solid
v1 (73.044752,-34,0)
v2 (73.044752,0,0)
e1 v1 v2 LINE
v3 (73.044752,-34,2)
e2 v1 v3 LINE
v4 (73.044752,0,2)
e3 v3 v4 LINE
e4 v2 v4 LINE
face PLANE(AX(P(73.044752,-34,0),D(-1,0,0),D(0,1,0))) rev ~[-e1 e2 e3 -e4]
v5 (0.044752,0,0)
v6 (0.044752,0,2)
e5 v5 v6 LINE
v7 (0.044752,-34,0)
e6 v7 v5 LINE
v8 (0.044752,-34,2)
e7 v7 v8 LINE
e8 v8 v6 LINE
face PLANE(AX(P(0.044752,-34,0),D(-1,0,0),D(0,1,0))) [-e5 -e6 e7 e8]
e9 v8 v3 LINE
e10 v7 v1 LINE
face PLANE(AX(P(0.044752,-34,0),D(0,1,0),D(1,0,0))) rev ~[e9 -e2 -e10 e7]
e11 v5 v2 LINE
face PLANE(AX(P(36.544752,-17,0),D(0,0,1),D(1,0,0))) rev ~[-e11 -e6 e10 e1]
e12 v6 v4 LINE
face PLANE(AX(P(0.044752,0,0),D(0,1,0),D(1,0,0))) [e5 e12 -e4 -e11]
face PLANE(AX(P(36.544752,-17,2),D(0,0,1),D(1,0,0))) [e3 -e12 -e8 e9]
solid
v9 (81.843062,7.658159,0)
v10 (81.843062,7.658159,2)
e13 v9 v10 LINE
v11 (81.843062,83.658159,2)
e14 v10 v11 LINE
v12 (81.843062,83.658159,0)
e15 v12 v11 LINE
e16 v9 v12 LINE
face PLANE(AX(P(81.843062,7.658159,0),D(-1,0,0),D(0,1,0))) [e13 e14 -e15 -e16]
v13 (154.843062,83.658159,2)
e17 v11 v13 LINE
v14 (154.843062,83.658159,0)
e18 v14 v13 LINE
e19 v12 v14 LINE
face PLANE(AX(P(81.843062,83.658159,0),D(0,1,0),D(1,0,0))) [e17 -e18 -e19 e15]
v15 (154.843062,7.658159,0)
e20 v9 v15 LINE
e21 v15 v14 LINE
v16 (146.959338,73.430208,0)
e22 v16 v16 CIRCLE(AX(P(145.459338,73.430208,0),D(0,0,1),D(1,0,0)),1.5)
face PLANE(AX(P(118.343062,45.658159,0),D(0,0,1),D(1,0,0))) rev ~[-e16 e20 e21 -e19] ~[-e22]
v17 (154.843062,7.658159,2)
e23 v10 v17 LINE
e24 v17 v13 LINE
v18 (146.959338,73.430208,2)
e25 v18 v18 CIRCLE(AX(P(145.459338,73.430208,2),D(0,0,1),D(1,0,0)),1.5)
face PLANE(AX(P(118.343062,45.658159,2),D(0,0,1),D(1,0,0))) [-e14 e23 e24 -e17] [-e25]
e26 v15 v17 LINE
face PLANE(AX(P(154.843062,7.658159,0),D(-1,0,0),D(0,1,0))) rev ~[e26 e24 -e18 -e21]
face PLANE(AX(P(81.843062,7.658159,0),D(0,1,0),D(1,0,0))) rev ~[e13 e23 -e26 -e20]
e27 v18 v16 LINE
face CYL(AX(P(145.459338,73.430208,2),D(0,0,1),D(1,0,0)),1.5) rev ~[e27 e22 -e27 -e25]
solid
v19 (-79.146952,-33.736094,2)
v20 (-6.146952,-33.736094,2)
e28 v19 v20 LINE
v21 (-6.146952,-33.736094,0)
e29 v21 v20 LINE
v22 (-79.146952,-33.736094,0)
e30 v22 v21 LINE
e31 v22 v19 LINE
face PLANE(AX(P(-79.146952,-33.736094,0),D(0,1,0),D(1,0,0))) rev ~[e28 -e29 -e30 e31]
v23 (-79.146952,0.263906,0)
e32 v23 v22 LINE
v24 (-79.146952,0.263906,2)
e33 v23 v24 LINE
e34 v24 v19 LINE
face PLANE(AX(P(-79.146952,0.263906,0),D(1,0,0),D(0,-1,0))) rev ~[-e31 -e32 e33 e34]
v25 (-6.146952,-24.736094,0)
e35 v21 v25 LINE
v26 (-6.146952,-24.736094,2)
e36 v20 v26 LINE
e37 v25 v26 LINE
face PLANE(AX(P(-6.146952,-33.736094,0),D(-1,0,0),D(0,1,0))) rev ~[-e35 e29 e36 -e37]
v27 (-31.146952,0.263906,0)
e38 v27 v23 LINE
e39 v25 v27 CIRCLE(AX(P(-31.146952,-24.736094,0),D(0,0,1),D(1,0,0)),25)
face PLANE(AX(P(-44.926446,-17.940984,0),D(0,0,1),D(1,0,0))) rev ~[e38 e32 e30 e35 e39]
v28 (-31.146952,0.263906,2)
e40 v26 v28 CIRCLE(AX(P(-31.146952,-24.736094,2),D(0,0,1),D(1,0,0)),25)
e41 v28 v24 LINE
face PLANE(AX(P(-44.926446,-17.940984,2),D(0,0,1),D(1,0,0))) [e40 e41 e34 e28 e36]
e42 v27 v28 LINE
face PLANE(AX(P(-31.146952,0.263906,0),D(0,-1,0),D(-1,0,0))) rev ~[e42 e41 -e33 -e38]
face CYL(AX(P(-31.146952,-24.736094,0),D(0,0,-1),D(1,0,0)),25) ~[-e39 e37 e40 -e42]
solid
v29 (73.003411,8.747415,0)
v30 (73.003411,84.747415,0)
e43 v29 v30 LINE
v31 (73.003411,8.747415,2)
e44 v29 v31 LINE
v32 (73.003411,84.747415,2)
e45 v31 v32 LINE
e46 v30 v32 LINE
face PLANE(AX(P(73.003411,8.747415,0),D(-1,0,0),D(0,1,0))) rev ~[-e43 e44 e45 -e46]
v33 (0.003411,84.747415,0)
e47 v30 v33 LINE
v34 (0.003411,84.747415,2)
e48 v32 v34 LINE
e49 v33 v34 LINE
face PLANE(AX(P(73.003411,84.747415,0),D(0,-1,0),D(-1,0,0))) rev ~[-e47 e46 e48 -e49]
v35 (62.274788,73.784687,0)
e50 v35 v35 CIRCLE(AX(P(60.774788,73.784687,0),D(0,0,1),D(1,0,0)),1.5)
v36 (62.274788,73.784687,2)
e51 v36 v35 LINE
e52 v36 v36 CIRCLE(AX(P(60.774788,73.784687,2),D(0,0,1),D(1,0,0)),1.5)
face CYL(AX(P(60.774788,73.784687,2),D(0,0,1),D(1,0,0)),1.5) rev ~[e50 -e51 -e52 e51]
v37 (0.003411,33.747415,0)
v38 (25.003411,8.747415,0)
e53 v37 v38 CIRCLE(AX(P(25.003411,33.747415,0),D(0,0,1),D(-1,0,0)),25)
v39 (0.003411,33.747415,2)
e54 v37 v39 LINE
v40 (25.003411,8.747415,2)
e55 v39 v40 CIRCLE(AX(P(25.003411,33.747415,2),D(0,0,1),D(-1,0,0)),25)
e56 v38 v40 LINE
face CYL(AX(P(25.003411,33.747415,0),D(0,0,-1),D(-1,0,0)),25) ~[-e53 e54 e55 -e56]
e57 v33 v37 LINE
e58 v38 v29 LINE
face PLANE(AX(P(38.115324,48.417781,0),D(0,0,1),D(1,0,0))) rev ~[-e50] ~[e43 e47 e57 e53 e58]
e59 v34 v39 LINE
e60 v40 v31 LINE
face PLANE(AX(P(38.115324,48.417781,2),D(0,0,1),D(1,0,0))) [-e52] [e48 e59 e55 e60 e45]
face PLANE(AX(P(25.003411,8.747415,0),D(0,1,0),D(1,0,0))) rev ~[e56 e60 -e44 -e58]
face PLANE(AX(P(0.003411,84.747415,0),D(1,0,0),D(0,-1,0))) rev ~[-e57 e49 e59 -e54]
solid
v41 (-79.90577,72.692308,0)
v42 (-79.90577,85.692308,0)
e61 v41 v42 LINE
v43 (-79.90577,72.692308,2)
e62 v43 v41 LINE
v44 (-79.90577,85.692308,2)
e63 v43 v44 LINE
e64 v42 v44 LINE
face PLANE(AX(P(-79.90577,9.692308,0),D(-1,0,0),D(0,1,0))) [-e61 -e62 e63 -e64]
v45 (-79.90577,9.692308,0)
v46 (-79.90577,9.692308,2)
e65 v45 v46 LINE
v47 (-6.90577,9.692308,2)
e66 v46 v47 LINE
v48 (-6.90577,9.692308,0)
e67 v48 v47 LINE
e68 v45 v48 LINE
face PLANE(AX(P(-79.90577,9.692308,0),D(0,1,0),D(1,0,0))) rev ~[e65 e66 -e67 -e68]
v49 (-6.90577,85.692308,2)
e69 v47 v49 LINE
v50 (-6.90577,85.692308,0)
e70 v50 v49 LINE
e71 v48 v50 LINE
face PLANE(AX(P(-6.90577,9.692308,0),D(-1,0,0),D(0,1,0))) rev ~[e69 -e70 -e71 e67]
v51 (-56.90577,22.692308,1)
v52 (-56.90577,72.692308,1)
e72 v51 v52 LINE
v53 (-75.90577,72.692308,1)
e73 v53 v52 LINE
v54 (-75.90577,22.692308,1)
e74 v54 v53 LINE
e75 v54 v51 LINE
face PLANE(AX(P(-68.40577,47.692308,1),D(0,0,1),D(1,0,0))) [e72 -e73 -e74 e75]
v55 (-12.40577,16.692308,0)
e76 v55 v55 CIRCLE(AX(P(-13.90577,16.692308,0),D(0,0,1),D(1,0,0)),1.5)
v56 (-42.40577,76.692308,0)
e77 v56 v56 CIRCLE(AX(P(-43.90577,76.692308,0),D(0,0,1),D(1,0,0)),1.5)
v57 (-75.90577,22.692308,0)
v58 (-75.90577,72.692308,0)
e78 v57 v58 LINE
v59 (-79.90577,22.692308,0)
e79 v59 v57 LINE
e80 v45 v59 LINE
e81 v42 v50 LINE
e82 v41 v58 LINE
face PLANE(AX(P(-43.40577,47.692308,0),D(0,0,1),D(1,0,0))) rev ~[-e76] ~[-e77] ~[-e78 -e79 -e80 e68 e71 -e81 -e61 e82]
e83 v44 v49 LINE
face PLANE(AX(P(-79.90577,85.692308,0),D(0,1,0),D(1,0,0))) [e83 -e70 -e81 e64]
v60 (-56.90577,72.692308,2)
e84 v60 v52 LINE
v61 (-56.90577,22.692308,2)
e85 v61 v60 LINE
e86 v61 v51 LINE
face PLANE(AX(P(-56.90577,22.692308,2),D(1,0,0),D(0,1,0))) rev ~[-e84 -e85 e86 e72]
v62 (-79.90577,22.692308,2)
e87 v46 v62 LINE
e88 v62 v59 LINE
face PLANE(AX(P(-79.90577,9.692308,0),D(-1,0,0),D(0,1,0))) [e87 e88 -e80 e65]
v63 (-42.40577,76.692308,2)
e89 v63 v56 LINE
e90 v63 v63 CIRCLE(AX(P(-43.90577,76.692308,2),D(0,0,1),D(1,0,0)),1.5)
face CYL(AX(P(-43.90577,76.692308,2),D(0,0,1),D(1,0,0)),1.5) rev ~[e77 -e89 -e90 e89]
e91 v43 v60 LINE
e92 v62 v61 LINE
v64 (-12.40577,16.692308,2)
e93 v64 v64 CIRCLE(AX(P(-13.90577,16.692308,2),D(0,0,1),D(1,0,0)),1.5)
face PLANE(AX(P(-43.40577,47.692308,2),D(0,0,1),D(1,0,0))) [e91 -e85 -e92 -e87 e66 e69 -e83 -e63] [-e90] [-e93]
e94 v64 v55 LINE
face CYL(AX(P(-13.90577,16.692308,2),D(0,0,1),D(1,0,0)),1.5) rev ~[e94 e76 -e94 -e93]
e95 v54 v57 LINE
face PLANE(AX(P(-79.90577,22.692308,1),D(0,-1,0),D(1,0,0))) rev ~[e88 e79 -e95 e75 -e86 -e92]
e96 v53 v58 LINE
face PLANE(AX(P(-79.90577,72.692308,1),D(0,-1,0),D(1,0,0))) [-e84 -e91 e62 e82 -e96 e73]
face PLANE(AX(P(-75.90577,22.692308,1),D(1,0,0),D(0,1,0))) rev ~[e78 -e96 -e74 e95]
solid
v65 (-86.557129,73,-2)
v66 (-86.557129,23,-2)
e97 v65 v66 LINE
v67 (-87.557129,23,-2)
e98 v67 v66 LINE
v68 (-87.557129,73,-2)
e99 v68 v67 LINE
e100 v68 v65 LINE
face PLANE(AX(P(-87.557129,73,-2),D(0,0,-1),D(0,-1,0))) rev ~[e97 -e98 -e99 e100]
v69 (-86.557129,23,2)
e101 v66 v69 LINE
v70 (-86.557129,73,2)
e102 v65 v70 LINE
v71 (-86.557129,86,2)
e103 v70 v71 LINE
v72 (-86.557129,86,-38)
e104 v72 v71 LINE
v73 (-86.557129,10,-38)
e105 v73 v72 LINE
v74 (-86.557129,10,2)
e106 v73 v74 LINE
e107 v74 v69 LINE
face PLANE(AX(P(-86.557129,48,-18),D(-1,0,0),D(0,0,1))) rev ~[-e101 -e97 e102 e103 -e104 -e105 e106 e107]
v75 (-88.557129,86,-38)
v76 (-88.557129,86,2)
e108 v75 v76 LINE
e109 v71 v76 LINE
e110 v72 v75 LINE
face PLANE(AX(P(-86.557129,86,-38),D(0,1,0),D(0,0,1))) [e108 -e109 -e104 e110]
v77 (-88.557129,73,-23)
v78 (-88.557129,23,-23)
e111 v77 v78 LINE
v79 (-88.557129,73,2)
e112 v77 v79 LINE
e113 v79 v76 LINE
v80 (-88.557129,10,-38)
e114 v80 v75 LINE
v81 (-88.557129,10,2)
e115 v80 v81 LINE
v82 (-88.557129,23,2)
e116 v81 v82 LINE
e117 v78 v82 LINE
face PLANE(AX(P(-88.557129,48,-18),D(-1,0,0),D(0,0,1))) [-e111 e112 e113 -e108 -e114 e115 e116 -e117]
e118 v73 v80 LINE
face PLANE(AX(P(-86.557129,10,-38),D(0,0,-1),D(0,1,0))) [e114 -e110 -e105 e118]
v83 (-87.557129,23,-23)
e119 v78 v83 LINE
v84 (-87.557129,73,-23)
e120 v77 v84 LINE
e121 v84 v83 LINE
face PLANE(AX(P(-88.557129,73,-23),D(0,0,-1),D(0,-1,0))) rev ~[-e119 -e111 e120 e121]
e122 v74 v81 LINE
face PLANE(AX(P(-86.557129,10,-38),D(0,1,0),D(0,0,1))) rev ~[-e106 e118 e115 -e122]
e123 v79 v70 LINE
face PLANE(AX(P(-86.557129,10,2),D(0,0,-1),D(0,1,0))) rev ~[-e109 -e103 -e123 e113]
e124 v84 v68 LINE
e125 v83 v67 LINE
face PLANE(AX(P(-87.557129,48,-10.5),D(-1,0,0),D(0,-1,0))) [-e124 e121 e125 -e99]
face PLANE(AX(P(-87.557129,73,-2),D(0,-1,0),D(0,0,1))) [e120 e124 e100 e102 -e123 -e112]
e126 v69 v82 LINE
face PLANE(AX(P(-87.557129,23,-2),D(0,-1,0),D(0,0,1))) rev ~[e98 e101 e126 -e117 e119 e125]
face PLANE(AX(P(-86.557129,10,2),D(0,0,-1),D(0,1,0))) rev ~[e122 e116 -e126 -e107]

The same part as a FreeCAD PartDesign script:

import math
import FreeCAD as App
import Part
import Sketcher


def add_polygon(sketch, points):
    """Adds a closed chain of lines whose ends are joined by coincident constraints."""
    first, n = sketch.GeometryCount, len(points)
    for a, b in zip(points, points[1:] + points[:1]):
        sketch.addGeometry(Part.LineSegment(App.Vector(*a, 0), App.Vector(*b, 0)), False)
    for i in range(n):
        sketch.addConstraint(Sketcher.Constraint("Coincident", first + i, 2, first + (i + 1) % n, 1))

doc = App.newDocument("Part")
body = doc.addObject("PartDesign::Body", "Body")

sketch1 = doc.addObject("Sketcher::SketchObject", "Sketch")
body.addObject(sketch1)
sketch1.AttachmentSupport = (doc.XY_Plane, [""])
sketch1.MapMode = "FlatFace"
add_polygon(sketch1, [(-80, 86), (-80, 10), (-7, 10), (-7, 86)])
sketch1.addConstraint([
    Sketcher.Constraint("Vertical", 0),
    Sketcher.Constraint("Horizontal", 1),
    Sketcher.Constraint("Vertical", 2),
    Sketcher.Constraint("Horizontal", 3),
    Sketcher.Constraint("DistanceX", 1, 1, 1, 2, 73.0),
    Sketcher.Constraint("DistanceY", 0, 2, 0, 1, 76.0),
    Sketcher.Constraint("DistanceX", 0, 2, -1, 1, 79.90577),
    Sketcher.Constraint("DistanceY", -1, 1, 0, 2, 9.692308),
])
pad1 = doc.addObject("PartDesign::Pad", "Pad")
body.addObject(pad1)
pad1.Profile = sketch1
pad1.Length = 2
body2 = doc.addObject("PartDesign::Body", "Body001")

sketch2 = doc.addObject("Sketcher::SketchObject", "Sketch001")
body2.addObject(sketch2)
sketch2.AttachmentSupport = (doc.getObject("XY_Plane001"), [""])
sketch2.MapMode = "FlatFace"
sketch2.addGeometry([
    Part.LineSegment(App.Vector(73, 85, 0), App.Vector(0, 85, 0)),
    Part.LineSegment(App.Vector(0, 85, 0), App.Vector(0, 34, 0)),
    Part.ArcOfCircle(Part.Circle(App.Vector(25, 34, 0), App.Vector(0, 0, 1), 25), math.radians(180), math.radians(270)),
    Part.LineSegment(App.Vector(25, 9, 0), App.Vector(73, 9, 0)),
    Part.LineSegment(App.Vector(73, 9, 0), App.Vector(73, 85, 0)),
], False)
sketch2.addConstraint([
    Sketcher.Constraint("Coincident", 0, 2, 1, 1),
    Sketcher.Constraint("Tangent", 1, 2, 2, 1),
    Sketcher.Constraint("Tangent", 2, 2, 3, 1),
    Sketcher.Constraint("Coincident", 3, 2, 4, 1),
    Sketcher.Constraint("Coincident", 4, 2, 0, 1),
    Sketcher.Constraint("Horizontal", 0),
    Sketcher.Constraint("Vertical", 1),
    Sketcher.Constraint("Horizontal", 3),
    Sketcher.Constraint("Vertical", 4),
    Sketcher.Constraint("Radius", 2, 25.0),
    Sketcher.Constraint("DistanceX", 0, 2, 0, 1, 73.0),
    Sketcher.Constraint("DistanceY", 1, 2, 1, 1, 51.0),
    Sketcher.Constraint("DistanceX", -1, 1, 2, 3, 25.003411),
    Sketcher.Constraint("DistanceY", -1, 1, 2, 3, 33.747415),
])
pad2 = doc.addObject("PartDesign::Pad", "Pad001")
body2.addObject(pad2)
pad2.Profile = sketch2
pad2.Length = 2
body3 = doc.addObject("PartDesign::Body", "Body002")

sketch3 = doc.addObject("Sketcher::SketchObject", "Sketch002")
body3.addObject(sketch3)
sketch3.AttachmentSupport = (doc.getObject("XY_Plane002"), [""])
sketch3.MapMode = "FlatFace"
sketch3.addGeometry([
    Part.LineSegment(App.Vector(-31, 0, 0), App.Vector(-79, 0, 0)),
    Part.LineSegment(App.Vector(-79, 0, 0), App.Vector(-79, -34, 0)),
    Part.LineSegment(App.Vector(-79, -34, 0), App.Vector(-6, -34, 0)),
    Part.LineSegment(App.Vector(-6, -34, 0), App.Vector(-6, -25, 0)),
    Part.ArcOfCircle(Part.Circle(App.Vector(-31, -25, 0), App.Vector(0, 0, 1), 25), math.radians(0), math.radians(90)),
], False)
sketch3.addConstraint([
    Sketcher.Constraint("Coincident", 0, 2, 1, 1),
    Sketcher.Constraint("Coincident", 1, 2, 2, 1),
    Sketcher.Constraint("Coincident", 2, 2, 3, 1),
    Sketcher.Constraint("Tangent", 3, 2, 4, 1),
    Sketcher.Constraint("Tangent", 4, 2, 0, 1),
    Sketcher.Constraint("Horizontal", 0),
    Sketcher.Constraint("Vertical", 1),
    Sketcher.Constraint("Horizontal", 2),
    Sketcher.Constraint("Vertical", 3),
    Sketcher.Constraint("Radius", 4, 25.0),
    Sketcher.Constraint("DistanceX", 0, 2, 0, 1, 48.0),
    Sketcher.Constraint("DistanceY", 1, 2, 1, 1, 34.0),
    Sketcher.Constraint("DistanceX", 4, 3, -1, 1, 31.146952),
    Sketcher.Constraint("DistanceY", 4, 3, -1, 1, 24.736094),
])
pad3 = doc.addObject("PartDesign::Pad", "Pad002")
body3.addObject(pad3)
pad3.Profile = sketch3
pad3.Length = 2
body4 = doc.addObject("PartDesign::Body", "Body003")

sketch4 = doc.addObject("Sketcher::SketchObject", "Sketch003")
body4.addObject(sketch4)
sketch4.AttachmentSupport = (doc.getObject("XY_Plane003"), [""])
sketch4.MapMode = "FlatFace"
add_polygon(sketch4, [(0, 0), (0, -34), (73, -34), (73, 0)])
sketch4.addConstraint([
    Sketcher.Constraint("Vertical", 0),
    Sketcher.Constraint("Horizontal", 1),
    Sketcher.Constraint("Vertical", 2),
    Sketcher.Constraint("Horizontal", 3),
    Sketcher.Constraint("PointOnObject", 2, 2, -1),
    Sketcher.Constraint("DistanceX", 1, 1, 1, 2, 73.0),
    Sketcher.Constraint("DistanceY", 0, 2, 0, 1, 34.0),
    Sketcher.Constraint("DistanceX", -1, 1, 0, 2, 0.044752),
])
pad4 = doc.addObject("PartDesign::Pad", "Pad003")
body4.addObject(pad4)
pad4.Profile = sketch4
pad4.Length = 2
body5 = doc.addObject("PartDesign::Body", "Body004")

sketch5 = doc.addObject("Sketcher::SketchObject", "Sketch004")
body5.addObject(sketch5)
sketch5.AttachmentSupport = (doc.getObject("XY_Plane004"), [""])
sketch5.MapMode = "FlatFace"
add_polygon(sketch5, [(82, 84), (82, 8), (155, 8), (155, 84)])
sketch5.addConstraint([
    Sketcher.Constraint("Vertical", 0),
    Sketcher.Constraint("Horizontal", 1),
    Sketcher.Constraint("Vertical", 2),
    Sketcher.Constraint("Horizontal", 3),
    Sketcher.Constraint("DistanceX", 1, 1, 1, 2, 73.0),
    Sketcher.Constraint("DistanceY", 0, 2, 0, 1, 76.0),
    Sketcher.Constraint("DistanceY", -1, 1, 0, 2, 7.658159),
    Sketcher.Constraint("DistanceX", -1, 1, 0, 2, 81.843062),
])
pad5 = doc.addObject("PartDesign::Pad", "Pad004")
body5.addObject(pad5)
pad5.Profile = sketch5
pad5.Length = 2
body6 = doc.addObject("PartDesign::Body", "Body005")

sketch6 = doc.addObject("Sketcher::SketchObject", "Sketch005")
body6.addObject(sketch6)
sketch6.AttachmentSupport = (doc.getObject("XY_Plane005"), [""])
sketch6.MapMode = "FlatFace"
add_polygon(sketch6, [(81, 0), (81, -76), (121, -76), (121, 0)])
sketch6.addConstraint([
    Sketcher.Constraint("Vertical", 0),
    Sketcher.Constraint("Horizontal", 1),
    Sketcher.Constraint("Vertical", 2),
    Sketcher.Constraint("Horizontal", 3),
    Sketcher.Constraint("PointOnObject", 2, 2, -1),
    Sketcher.Constraint("DistanceX", 1, 1, 1, 2, 40.0),
    Sketcher.Constraint("DistanceY", 0, 2, 0, 1, 76.0),
    Sketcher.Constraint("DistanceX", -1, 1, 0, 2, 81.442871),
])
pad6 = doc.addObject("PartDesign::Pad", "Pad005")
body6.addObject(pad6)
pad6.Profile = sketch6
pad6.Length = 2
body7 = doc.addObject("PartDesign::Body", "Body006")

sketch7 = doc.addObject("Sketcher::SketchObject", "Sketch006")
body7.addObject(sketch7)
sketch7.AttachmentSupport = (doc.getObject("XY_Plane006"), [""])
sketch7.MapMode = "FlatFace"
add_polygon(sketch7, [(128, 0), (128, -76), (168, -76), (168, 0)])
sketch7.addConstraint([
    Sketcher.Constraint("Vertical", 0),
    Sketcher.Constraint("Horizontal", 1),
    Sketcher.Constraint("Vertical", 2),
    Sketcher.Constraint("Horizontal", 3),
    Sketcher.Constraint("DistanceX", 1, 1, 1, 2, 40.0),
    Sketcher.Constraint("DistanceY", 0, 2, 0, 1, 76.0),
    Sketcher.Constraint("DistanceX", -1, 1, 0, 2, 128.247227),
    Sketcher.Constraint("DistanceY", 0, 2, -1, 1, 76.000594),
])
pad7 = doc.addObject("PartDesign::Pad", "Pad006")
body7.addObject(pad7)
pad7.Profile = sketch7
pad7.Length = 2
body8 = doc.addObject("PartDesign::Body", "Body007")
body8.AllowCompound = True

sketch8 = doc.addObject("Sketcher::SketchObject", "Sketch007")
body8.addObject(sketch8)
sketch8.AttachmentSupport = (doc.getObject("XY_Plane007"), [""])
sketch8.MapMode = "FlatFace"
sketch8.AttachmentOffset = App.Placement(App.Vector(0, 0, 2), App.Rotation())
sketch8.addGeometry([
    Part.Circle(App.Vector(60.8, 73.8, 0), App.Vector(0, 0, 1), 1.5),
    Part.Circle(App.Vector(145.5, 73.4, 0), App.Vector(0, 0, 1), 1.5),
    Part.Circle(App.Vector(-13.9, 16.7, 0), App.Vector(0, 0, 1), 1.5),
    Part.Circle(App.Vector(-43.9, 76.7, 0), App.Vector(0, 0, 1), 1.5),
], False)
sketch8.addConstraint([
    Sketcher.Constraint("Equal", 0, 1),
    Sketcher.Constraint("Equal", 1, 2),
    Sketcher.Constraint("Equal", 2, 3),
    Sketcher.Constraint("Diameter", 0, 3.0),
    Sketcher.Constraint("DistanceX", 3, 3, 2, 3, 30.0),
    Sketcher.Constraint("DistanceY", 2, 3, 3, 3, 60.0),
    Sketcher.Constraint("DistanceY", 2, 3, 1, 3, 56.737899),
    Sketcher.Constraint("DistanceX", -1, 1, 0, 3, 60.774788),
    Sketcher.Constraint("DistanceX", -1, 1, 1, 3, 145.459338),
    Sketcher.Constraint("DistanceX", 2, 3, -1, 1, 13.90577),
    Sketcher.Constraint("DistanceY", -1, 1, 2, 3, 16.692308),
    Sketcher.Constraint("DistanceY", 1, 3, 0, 3, 0.354479),
])
pad8 = doc.addObject("PartDesign::Pad", "Pad007")
body8.addObject(pad8)
pad8.Profile = sketch8
pad8.Length = 3
pad8.Reversed = True
doc.recompute()

body9 = doc.addObject("PartDesign::Body", "Body008")
body9.BaseFeature = body8
boolean = doc.addObject("PartDesign::Boolean", "Boolean")
body.addObject(boolean)
boolean.Type = "Cut"
boolean.addObjects([body9])
doc.recompute()

sketch9 = doc.addObject("Sketcher::SketchObject", "Sketch008")
body.addObject(sketch9)
sketch9.AttachmentSupport = (doc.XY_Plane, [""])
sketch9.MapMode = "FlatFace"
sketch9.AttachmentOffset = App.Placement(App.Vector(0, 0, 2), App.Rotation())
add_polygon(sketch9, [(-80, 73), (-80, 23), (-57, 23), (-57, 73)])
sketch9.addConstraint([
    Sketcher.Constraint("Vertical", 0),
    Sketcher.Constraint("Horizontal", 1),
    Sketcher.Constraint("Vertical", 2),
    Sketcher.Constraint("Horizontal", 3),
    Sketcher.Constraint("DistanceX", 1, 1, 1, 2, 23.0),
    Sketcher.Constraint("DistanceY", 0, 2, 0, 1, 50.0),
    Sketcher.Constraint("DistanceX", 0, 2, -1, 1, 79.90577),
    Sketcher.Constraint("DistanceY", -1, 1, 0, 2, 22.692308),
])
pocket1 = doc.addObject("PartDesign::Pocket", "Pocket")
body.addObject(pocket1)
pocket1.Profile = sketch9
pocket1.Length = 1

sketch10 = doc.addObject("Sketcher::SketchObject", "Sketch009")
body.addObject(sketch10)
sketch10.AttachmentSupport = (doc.XY_Plane, [""])
sketch10.MapMode = "FlatFace"
sketch10.AttachmentOffset = App.Placement(App.Vector(0, 0, 1), App.Rotation())
add_polygon(sketch10, [(-79.9, 72.7), (-79.9, 22.7), (-75.9, 22.7), (-75.9, 72.7)])
sketch10.addConstraint([
    Sketcher.Constraint("Vertical", 0),
    Sketcher.Constraint("Horizontal", 1),
    Sketcher.Constraint("Vertical", 2),
    Sketcher.Constraint("Horizontal", 3),
    Sketcher.Constraint("DistanceX", 1, 1, 1, 2, 4.0),
    Sketcher.Constraint("DistanceY", 0, 2, 0, 1, 50.0),
    Sketcher.Constraint("DistanceX", 0, 2, -1, 1, 79.90577),
    Sketcher.Constraint("DistanceY", -1, 1, 0, 2, 22.692308),
])
pocket2 = doc.addObject("PartDesign::Pocket", "Pocket001")
body.addObject(pocket2)
pocket2.Profile = sketch10
pocket2.Length = 2
doc.recompute()

body10 = doc.addObject("PartDesign::Body", "Body009")
body10.BaseFeature = body8
boolean2 = doc.addObject("PartDesign::Boolean", "Boolean001")
body2.addObject(boolean2)
boolean2.Type = "Cut"
boolean2.addObjects([body10])
doc.recompute()

boolean3 = doc.addObject("PartDesign::Boolean", "Boolean002")
body5.addObject(boolean3)
boolean3.Type = "Cut"
boolean3.addObjects([body8])
body11 = doc.addObject("PartDesign::Body", "Body010")
doc.recompute()

body6.Placement = App.Placement(App.Vector(-210, 86, 0), App.Rotation(App.Vector(0, 0, 1), 0))
boolean4 = doc.addObject("PartDesign::Boolean", "Boolean003")
body11.addObject(boolean4)
boolean4.Type = "Fuse"
boolean4.addObjects([body6])
body12 = doc.addObject("PartDesign::Body", "Body011")
doc.recompute()

body11.Placement = App.Placement(App.Vector(-86.557129, 0, 90.557129), App.Rotation(App.Vector(0, -1, 0), 90))
boolean5 = doc.addObject("PartDesign::Boolean", "Boolean004")
body12.addObject(boolean5)
boolean5.Type = "Fuse"
boolean5.addObjects([body11])

sketch11 = doc.addObject("Sketcher::SketchObject", "Sketch010")
body12.addObject(sketch11)
sketch11.AttachmentSupport = (doc.getObject("YZ_Plane011"), [""])
sketch11.MapMode = "FlatFace"
sketch11.AttachmentOffset = App.Placement(App.Vector(0, 0, -88.557129), App.Rotation())
add_polygon(sketch11, [(73, 2), (73, -23), (23, -23), (23, 2)])
sketch11.addConstraint([
    Sketcher.Constraint("Vertical", 0),
    Sketcher.Constraint("Horizontal", 1),
    Sketcher.Constraint("Vertical", 2),
    Sketcher.Constraint("Horizontal", 3),
    Sketcher.Constraint("DistanceX", 1, 2, 1, 1, 50.0),
    Sketcher.Constraint("DistanceY", 0, 2, 0, 1, 25.0),
    Sketcher.Constraint("DistanceX", -1, 1, 0, 2, 73.0),
    Sketcher.Constraint("DistanceY", 0, 2, -1, 1, 23.0),
])
pocket3 = doc.addObject("PartDesign::Pocket", "Pocket002")
body12.addObject(pocket3)
pocket3.Profile = sketch11
pocket3.Length = 1
pocket3.Reversed = True

sketch12 = doc.addObject("Sketcher::SketchObject", "Sketch011")
body12.addObject(sketch12)
sketch12.AttachmentSupport = (doc.getObject("YZ_Plane011"), [""])
sketch12.MapMode = "FlatFace"
sketch12.AttachmentOffset = App.Placement(App.Vector(0, 0, -87.557129), App.Rotation())
add_polygon(sketch12, [(73, 2), (73, -2), (23, -2), (23, 2)])
sketch12.addConstraint([
    Sketcher.Constraint("Vertical", 0),
    Sketcher.Constraint("Horizontal", 1),
    Sketcher.Constraint("Vertical", 2),
    Sketcher.Constraint("Horizontal", 3),
    Sketcher.Constraint("DistanceX", 1, 2, 1, 1, 50.0),
    Sketcher.Constraint("DistanceY", 0, 2, 0, 1, 4.0),
    Sketcher.Constraint("DistanceX", -1, 1, 0, 2, 73.0),
    Sketcher.Constraint("DistanceY", 0, 2, -1, 1, 2.0),
])
pocket4 = doc.addObject("PartDesign::Pocket", "Pocket003")
body12.addObject(pocket4)
pocket4.Profile = sketch12
pocket4.Length = 1.5
pocket4.Reversed = True
body7.Visibility = False

doc.recompute()
